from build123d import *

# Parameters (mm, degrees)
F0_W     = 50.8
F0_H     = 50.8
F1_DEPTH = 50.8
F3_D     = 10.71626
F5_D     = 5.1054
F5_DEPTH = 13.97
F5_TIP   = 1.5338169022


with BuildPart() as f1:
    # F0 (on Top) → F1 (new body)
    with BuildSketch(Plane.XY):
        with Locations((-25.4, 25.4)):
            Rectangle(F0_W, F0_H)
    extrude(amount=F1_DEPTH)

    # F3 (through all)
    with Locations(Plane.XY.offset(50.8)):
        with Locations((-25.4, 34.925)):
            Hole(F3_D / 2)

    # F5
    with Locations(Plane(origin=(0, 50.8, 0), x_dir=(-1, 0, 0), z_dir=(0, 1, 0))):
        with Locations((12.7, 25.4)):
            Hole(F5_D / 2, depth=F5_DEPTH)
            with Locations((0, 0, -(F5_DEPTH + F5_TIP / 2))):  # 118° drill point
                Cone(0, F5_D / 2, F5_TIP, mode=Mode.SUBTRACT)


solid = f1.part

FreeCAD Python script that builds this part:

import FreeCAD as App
import Part
import Sketcher

V = App.Vector
Q = App.Units.Quantity

doc = App.newDocument("Part")
body = doc.addObject("PartDesign::Body", "Body")

# Sketch on XY plane
sketch1 = doc.addObject("Sketcher::SketchObject", "Sketch")
body.addObject(sketch1)
sketch1.AttachmentSupport = (doc.XY_Plane, [""])
sketch1.MapMode = "FlatFace"
sketch1.addGeometry([
    Part.LineSegment(V(-51, 51, 0), V(-51, 0, 0)),
    Part.LineSegment(V(-51, 0, 0), V(0, 0, 0)),
    Part.LineSegment(V(0, 0, 0), V(0, 51, 0)),
    Part.LineSegment(V(0, 51, 0), V(-51, 51, 0)),
], False)
sketch1.addConstraint([
    Sketcher.Constraint("Coincident", 0, 2, 1, 1),
    Sketcher.Constraint("Coincident", 1, 2, 2, 1),
    Sketcher.Constraint("Coincident", 2, 2, 3, 1),
    Sketcher.Constraint("Coincident", 3, 2, 0, 1),
    Sketcher.Constraint("Vertical", 0),
    Sketcher.Constraint("Horizontal", 1),
    Sketcher.Constraint("Vertical", 2),
    Sketcher.Constraint("Horizontal", 3),
    Sketcher.Constraint("Coincident", 1, 2, -1, 1),
    Sketcher.Constraint("Equal", 3, 0),
    Sketcher.Constraint("DistanceX", 1, 1, 1, 2, Q("2 in")),
])
pad1 = doc.addObject("PartDesign::Pad", "Pad")
body.addObject(pad1)
pad1.Profile = sketch1
pad1.Length = Q("2 in")

# Sketch on XY plane
sketch2 = doc.addObject("Sketcher::SketchObject", "Sketch001")
body.addObject(sketch2)
sketch2.AttachmentSupport = (doc.XY_Plane, [""])
sketch2.MapMode = "FlatFace"
sketch2.AttachmentOffset = App.Placement(V(0, 0, 2 * 25.4), App.Rotation())
sketch2.addGeometry(Part.Circle(V(-25, 35, 0), V(0, 0, 1), 5), False)
sketch2.addConstraint([
    Sketcher.Constraint("DistanceX", 0, 3, -1, 1, Q("1 in")),
    Sketcher.Constraint("Diameter", 0, Q("0.4219 in")),
    Sketcher.Constraint("DistanceY", -1, 1, 0, 3, Q("1.375 in")),
])
doc.recompute()
hole = doc.addObject("PartDesign::Hole", "Hole")
body.addObject(hole)
hole.Profile = sketch2
hole.ThreadType = "None"
hole.Diameter = Q("0.4219 in")
hole.DepthType = "ThroughAll"

# Sketch on XZ plane
sketch3 = doc.addObject("Sketcher::SketchObject", "Sketch002")
body.addObject(sketch3)
sketch3.AttachmentSupport = (doc.XZ_Plane, [""])
sketch3.MapMode = "FlatFace"
sketch3.AttachmentOffset = App.Placement(V(0, 0, -2 * 25.4), App.Rotation())
sketch3.addGeometry(Part.Circle(V(-12.7, 25.4, 0), V(0, 0, 1), 2.6), False)
sketch3.addConstraint([
    Sketcher.Constraint("Diameter", 0, Q("0.201 in")),
    Sketcher.Constraint("DistanceY", -1, 1, 0, 3, Q("1 in")),
    Sketcher.Constraint("DistanceX", 0, 3, -1, 1, Q("0.5 in")),
])
doc.recompute()
hole2 = doc.addObject("PartDesign::Hole", "Hole001")
body.addObject(hole2)
hole2.Profile = sketch3
hole2.ThreadType = "None"
hole2.Diameter = Q("0.201 in")
hole2.DepthType = "Dimension"
hole2.Depth = Q("0.55 in")
hole2.DrillPoint = "Angled"
hole2.DrillPointAngle = 118
hole2.Reversed = True

doc.recompute()
